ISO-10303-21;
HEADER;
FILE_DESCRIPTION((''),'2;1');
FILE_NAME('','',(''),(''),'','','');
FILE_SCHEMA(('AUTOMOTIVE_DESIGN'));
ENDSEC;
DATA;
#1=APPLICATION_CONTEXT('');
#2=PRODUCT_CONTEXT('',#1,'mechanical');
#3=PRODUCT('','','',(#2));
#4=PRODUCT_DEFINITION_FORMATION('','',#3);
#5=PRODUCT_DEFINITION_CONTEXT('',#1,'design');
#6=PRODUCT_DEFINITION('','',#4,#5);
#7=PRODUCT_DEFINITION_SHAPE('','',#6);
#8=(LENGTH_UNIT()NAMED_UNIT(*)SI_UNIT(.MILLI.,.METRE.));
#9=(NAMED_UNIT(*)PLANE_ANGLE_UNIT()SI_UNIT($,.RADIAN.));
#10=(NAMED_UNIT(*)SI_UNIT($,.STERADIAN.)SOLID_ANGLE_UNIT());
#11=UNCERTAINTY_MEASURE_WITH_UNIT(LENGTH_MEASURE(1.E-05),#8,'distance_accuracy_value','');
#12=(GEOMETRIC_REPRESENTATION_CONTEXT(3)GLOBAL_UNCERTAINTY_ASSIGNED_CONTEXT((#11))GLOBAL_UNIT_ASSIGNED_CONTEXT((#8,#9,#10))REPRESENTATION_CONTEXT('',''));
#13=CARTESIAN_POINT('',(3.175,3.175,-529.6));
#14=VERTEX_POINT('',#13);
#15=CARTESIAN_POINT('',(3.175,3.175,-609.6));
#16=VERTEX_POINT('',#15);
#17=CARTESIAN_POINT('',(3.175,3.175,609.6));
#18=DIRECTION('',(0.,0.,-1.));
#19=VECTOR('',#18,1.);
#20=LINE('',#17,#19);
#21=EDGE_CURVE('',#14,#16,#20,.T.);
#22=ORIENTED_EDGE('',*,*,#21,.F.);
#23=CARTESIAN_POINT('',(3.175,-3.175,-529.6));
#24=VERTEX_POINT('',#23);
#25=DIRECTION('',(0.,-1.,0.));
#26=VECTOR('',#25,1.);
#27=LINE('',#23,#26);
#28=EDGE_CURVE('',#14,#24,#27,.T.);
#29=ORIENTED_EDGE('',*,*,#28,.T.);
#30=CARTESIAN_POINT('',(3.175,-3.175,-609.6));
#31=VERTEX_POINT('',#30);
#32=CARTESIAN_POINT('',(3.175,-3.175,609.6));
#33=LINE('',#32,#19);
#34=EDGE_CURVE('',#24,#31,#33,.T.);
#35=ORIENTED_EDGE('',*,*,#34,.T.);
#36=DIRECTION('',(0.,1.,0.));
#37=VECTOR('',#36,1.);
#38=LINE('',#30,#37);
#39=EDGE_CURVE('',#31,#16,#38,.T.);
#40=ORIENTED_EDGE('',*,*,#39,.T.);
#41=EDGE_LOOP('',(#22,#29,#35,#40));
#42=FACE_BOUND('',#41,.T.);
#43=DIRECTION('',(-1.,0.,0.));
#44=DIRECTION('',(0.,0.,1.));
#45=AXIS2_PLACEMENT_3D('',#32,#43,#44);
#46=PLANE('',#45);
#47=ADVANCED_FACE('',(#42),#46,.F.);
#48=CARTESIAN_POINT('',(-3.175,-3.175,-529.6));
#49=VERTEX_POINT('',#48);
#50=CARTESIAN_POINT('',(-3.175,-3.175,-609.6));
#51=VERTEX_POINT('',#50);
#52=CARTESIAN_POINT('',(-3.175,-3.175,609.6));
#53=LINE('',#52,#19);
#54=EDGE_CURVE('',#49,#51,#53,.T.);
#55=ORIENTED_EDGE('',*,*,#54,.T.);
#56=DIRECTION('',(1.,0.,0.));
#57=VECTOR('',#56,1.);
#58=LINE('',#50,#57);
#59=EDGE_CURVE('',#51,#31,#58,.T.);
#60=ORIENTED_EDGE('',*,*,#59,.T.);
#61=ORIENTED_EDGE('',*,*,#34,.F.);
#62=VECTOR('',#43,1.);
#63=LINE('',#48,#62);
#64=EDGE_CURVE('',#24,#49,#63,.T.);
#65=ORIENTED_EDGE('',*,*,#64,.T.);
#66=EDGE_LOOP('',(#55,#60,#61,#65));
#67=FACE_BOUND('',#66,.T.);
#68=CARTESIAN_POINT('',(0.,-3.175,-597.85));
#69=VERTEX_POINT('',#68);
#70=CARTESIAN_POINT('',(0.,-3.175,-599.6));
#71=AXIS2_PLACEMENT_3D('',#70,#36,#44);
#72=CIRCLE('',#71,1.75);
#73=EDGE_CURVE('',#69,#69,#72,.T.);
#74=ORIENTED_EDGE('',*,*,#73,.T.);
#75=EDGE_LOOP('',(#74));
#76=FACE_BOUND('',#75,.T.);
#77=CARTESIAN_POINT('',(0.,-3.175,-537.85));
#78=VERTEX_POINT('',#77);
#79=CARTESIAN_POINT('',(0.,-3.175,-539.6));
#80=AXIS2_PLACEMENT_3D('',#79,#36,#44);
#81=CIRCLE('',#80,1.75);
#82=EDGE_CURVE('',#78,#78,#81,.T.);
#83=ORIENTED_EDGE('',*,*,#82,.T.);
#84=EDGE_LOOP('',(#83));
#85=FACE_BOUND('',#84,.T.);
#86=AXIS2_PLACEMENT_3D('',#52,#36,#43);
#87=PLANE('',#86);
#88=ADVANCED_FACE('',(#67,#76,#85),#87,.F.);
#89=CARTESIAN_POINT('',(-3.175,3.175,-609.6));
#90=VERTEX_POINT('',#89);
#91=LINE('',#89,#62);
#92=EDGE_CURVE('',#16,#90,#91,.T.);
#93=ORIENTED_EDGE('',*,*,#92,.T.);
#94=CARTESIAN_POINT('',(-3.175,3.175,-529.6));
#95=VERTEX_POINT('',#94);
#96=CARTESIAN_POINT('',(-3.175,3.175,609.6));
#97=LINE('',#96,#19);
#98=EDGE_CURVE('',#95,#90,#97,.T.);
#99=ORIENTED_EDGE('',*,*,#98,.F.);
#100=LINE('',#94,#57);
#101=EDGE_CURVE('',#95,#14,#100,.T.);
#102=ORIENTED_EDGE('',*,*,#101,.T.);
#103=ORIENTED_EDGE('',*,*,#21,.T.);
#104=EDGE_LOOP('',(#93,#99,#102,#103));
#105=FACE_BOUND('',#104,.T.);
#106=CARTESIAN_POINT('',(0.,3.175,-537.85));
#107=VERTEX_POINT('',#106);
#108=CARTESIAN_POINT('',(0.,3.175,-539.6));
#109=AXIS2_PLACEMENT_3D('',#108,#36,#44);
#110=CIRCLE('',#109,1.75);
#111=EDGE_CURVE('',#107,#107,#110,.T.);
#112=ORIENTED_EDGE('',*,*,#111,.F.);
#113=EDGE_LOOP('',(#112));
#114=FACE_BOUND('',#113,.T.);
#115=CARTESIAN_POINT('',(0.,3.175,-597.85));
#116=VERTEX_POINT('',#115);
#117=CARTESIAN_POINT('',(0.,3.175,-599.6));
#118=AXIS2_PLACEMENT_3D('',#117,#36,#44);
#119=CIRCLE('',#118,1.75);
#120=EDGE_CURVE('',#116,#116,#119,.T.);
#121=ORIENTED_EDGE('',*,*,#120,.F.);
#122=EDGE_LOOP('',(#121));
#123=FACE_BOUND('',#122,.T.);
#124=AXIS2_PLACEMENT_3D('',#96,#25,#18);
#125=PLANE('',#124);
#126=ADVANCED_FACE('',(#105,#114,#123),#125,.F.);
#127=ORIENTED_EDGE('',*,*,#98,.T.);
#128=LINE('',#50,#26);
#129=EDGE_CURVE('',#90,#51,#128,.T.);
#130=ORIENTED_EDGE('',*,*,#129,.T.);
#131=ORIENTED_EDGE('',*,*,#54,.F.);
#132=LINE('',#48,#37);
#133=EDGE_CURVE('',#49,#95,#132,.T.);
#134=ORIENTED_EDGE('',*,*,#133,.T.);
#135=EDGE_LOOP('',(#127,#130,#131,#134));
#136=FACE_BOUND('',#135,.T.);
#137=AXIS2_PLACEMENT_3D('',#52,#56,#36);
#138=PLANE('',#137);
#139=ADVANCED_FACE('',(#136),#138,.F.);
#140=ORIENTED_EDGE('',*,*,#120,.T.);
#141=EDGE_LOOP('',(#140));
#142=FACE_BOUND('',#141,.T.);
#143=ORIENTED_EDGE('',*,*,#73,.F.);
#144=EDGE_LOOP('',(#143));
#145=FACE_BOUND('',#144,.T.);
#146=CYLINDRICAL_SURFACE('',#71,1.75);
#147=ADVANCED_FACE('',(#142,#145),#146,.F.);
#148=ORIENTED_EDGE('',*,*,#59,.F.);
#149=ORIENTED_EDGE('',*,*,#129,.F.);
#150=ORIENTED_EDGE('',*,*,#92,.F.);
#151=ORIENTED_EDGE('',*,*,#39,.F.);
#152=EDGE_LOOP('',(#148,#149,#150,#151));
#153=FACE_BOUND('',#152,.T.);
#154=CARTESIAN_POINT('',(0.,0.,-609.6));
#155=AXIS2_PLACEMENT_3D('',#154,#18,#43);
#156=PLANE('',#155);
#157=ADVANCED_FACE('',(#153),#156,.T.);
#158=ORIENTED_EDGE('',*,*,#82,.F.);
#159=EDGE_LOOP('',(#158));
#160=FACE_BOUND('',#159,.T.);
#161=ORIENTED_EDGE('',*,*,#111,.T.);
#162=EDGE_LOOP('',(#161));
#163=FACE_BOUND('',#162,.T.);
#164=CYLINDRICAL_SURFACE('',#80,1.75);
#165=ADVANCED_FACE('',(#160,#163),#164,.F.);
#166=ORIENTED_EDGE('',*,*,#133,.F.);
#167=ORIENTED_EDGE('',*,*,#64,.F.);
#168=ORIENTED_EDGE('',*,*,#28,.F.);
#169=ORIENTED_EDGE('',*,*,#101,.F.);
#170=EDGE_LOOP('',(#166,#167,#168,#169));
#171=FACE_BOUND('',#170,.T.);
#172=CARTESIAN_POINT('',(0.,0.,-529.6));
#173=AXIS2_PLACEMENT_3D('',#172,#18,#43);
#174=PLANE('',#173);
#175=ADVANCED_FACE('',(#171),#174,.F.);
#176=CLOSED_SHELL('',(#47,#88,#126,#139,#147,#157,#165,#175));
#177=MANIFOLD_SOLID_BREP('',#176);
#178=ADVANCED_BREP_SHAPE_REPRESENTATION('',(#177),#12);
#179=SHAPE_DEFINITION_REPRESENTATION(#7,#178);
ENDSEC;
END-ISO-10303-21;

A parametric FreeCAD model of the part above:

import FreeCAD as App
import Part
import Sketcher
from FreeCAD import Vector
Q = App.Units.Quantity


def add_polygon(sketch, points):
    """Adds a closed chain of lines whose ends are joined by coincident constraints."""
    first, n = sketch.GeometryCount, len(points)
    for a, b in zip(points, points[1:] + points[:1]):
        sketch.addGeometry(Part.LineSegment(App.Vector(*a, 0), App.Vector(*b, 0)), False)
    for i in range(n):
        sketch.addConstraint(Sketcher.Constraint("Coincident", first + i, 2, first + (i + 1) % n, 1))

doc = App.newDocument("Part")
body = doc.addObject("PartDesign::Body", "Body")

# Sketch on XY plane
sketch1 = body.newObject("Sketcher::SketchObject", "Sketch")
sketch1.AttachmentSupport = (doc.getObject("XY_Plane"), [""])
sketch1.MapMode = "FlatFace"
add_polygon(sketch1, [(-3, 3), (-3, -3), (3, -3), (3, 3)])  # lines 0-3
sketch1.addConstraint([
    Sketcher.Constraint("Vertical", 0),
    Sketcher.Constraint("Horizontal", 1),
    Sketcher.Constraint("Vertical", 2),
    Sketcher.Constraint("Horizontal", 3),
    Sketcher.Constraint("Symmetric", 0, 2, 2, 2, -1, 1),
    Sketcher.Constraint("Equal", 3, 0),
    Sketcher.Constraint("DistanceX", 1, 1, 1, 2, Q("0.25 in")),
])
pad1 = body.newObject("PartDesign::Pad", "Pad")
pad1.Profile = sketch1
pad1.Type = "TwoLengths"
pad1.Length = Q("24 in")
pad1.Length2 = Q("24 in")

# Sketch on XY plane
sketch2 = body.newObject("Sketcher::SketchObject", "Sketch001")
sketch2.AttachmentSupport = (doc.getObject("XY_Plane"), [""])
sketch2.MapMode = "FlatFace"
sketch2.AttachmentOffset = App.Placement(Vector(0, 0, -529.6), App.Rotation())
add_polygon(sketch2, [(4, 4), (4, -4), (-4, -4), (-4, 4)])  # lines 0-3
sketch2.addConstraint([
    Sketcher.Constraint("Vertical", 0),
    Sketcher.Constraint("Horizontal", 1),
    Sketcher.Constraint("Vertical", 2),
    Sketcher.Constraint("Horizontal", 3),
    Sketcher.Constraint("Symmetric", 0, 2, 2, 2, -1, 1),
    Sketcher.Constraint("Equal", 3, 0),
    Sketcher.Constraint("DistanceX", 1, 2, 1, 1, Q("7.35 mm")),
])
pocket1 = body.newObject("PartDesign::Pocket", "Pocket")
pocket1.Profile = sketch2
pocket1.Type = "ThroughAll"
pocket1.Reversed = True

# Sketch on XZ plane
sketch3 = body.newObject("Sketcher::SketchObject", "Sketch002")
sketch3.AttachmentSupport = (doc.getObject("XZ_Plane"), [""])
sketch3.MapMode = "FlatFace"
sketch3.AttachmentOffset = App.Placement(Vector(0, 0, -0.125 * 25.4), App.Rotation())
sketch3.addGeometry([
    Part.Circle(Vector(0, -599.6, 0), Vector(0, 0, 1), 1.8),
    Part.Circle(Vector(0, -539.6, 0), Vector(0, 0, 1), 1.8),
], False)
sketch3.addConstraint([
    Sketcher.Constraint("Equal", 0, 1),
    Sketcher.Constraint("PointOnObject", 0, 3, -2),
    Sketcher.Constraint("PointOnObject", 1, 3, -2),
    Sketcher.Constraint("Diameter", 0, Q("3.5 mm")),
    Sketcher.Constraint("DistanceY", 0, 3, -1, 1, Q("599.6 mm")),
    Sketcher.Constraint("DistanceY", 1, 3, -1, 1, Q("539.6 mm")),
])
pocket2 = body.newObject("PartDesign::Pocket", "Pocket001")
pocket2.Profile = sketch3
pocket2.Type = "ThroughAll"
pocket2.Reversed = True

doc.recompute()
